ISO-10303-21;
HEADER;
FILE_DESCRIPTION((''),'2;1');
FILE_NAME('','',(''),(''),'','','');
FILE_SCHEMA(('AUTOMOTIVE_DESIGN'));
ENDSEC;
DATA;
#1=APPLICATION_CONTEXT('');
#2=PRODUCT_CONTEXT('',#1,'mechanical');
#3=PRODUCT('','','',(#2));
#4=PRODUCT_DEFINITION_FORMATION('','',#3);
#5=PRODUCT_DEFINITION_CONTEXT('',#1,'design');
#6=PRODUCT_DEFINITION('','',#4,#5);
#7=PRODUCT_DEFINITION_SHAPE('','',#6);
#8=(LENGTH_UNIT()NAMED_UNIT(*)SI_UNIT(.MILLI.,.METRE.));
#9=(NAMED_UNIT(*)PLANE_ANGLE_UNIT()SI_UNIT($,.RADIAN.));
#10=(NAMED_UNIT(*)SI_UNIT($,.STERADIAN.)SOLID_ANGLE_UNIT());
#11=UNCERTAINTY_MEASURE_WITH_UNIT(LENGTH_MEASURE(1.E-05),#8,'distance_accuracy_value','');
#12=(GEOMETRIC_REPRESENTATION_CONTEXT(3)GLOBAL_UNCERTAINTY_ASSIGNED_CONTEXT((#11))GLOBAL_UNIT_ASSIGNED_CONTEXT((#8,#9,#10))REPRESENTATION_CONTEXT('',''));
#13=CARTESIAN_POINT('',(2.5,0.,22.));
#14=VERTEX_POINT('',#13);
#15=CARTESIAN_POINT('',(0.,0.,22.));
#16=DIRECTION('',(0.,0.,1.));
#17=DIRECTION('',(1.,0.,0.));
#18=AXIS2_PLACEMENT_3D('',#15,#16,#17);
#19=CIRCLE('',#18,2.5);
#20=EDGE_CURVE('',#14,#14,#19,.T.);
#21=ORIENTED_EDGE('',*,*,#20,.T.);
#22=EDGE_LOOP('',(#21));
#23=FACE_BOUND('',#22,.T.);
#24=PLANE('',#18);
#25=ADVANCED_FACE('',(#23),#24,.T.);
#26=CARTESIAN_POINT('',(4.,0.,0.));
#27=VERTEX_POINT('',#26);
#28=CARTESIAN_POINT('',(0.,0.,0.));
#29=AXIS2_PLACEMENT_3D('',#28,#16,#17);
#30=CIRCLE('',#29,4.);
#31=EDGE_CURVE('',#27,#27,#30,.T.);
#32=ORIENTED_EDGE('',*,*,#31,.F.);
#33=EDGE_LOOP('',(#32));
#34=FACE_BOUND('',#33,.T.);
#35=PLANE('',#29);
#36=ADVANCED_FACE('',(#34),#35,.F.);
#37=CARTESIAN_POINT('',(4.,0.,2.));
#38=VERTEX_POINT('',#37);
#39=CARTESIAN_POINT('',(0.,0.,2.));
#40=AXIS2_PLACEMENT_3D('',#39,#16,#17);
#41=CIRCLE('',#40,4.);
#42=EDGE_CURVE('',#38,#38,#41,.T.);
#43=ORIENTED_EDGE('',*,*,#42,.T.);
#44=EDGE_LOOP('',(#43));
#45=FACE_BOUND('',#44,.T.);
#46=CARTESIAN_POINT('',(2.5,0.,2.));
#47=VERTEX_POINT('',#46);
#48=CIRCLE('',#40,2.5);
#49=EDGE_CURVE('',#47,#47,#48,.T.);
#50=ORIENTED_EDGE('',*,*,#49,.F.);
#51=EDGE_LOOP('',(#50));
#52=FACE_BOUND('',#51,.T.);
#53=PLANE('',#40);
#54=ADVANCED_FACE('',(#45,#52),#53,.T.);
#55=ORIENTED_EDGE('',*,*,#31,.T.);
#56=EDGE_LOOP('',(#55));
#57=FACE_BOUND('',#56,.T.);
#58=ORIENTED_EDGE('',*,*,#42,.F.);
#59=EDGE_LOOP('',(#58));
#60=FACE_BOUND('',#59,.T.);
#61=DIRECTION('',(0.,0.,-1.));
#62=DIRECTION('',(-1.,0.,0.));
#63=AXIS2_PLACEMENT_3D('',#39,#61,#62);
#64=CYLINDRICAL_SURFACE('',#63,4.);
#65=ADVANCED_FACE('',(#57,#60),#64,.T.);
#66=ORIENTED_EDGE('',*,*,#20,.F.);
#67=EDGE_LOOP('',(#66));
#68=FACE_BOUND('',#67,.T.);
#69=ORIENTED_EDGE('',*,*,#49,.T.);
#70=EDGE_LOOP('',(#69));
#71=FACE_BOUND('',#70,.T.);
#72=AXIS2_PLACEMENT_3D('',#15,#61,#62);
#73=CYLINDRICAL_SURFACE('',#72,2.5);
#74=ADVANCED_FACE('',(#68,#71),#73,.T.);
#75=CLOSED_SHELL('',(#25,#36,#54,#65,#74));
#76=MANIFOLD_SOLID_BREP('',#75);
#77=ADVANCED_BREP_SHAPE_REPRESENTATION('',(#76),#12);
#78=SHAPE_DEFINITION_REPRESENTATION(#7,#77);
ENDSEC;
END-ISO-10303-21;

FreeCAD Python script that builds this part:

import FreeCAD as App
import Part
import Sketcher

V = App.Vector

doc = App.newDocument("Part")
params = doc.addObject("Spreadsheet::Sheet", "Params")
for row, (alias, value) in enumerate([
    ("sketch1_diameter", "8 mm"),
    ("pad1_length", "2 mm"),
    ("sketch2_diameter", "5 mm"),
    ("pad2_length", "20 mm"),
], start=1):
    params.set(f"A{row}", alias)
    params.set(f"B{row}", "=" + value)
    params.setAlias(f"B{row}", alias)

body = doc.addObject("PartDesign::Body", "Body")

sketch1 = body.newObject("Sketcher::SketchObject", "Sketch")
sketch1.AttachmentSupport = (doc.getObject("XY_Plane"), [""])
sketch1.MapMode = "FlatFace"
sketch1.addGeometry(Part.Circle(V(0, 0, 0), V(0, 0, 1), 4), False)
sketch1.addConstraint(Sketcher.Constraint("Coincident", 0, 3, -1, 1))
sketch1.addConstraint(Sketcher.Constraint("Diameter", 0, 8.0))
sketch1.setExpression("Constraints[1]", "Params.sketch1_diameter")
pad1 = body.newObject("PartDesign::Pad", "Pad")
pad1.Profile = sketch1
pad1.setExpression("Length", "Params.pad1_length")

sketch2 = body.newObject("Sketcher::SketchObject", "Sketch001")
sketch2.AttachmentSupport = (doc.getObject("XY_Plane"), [""])
sketch2.MapMode = "FlatFace"
sketch2.AttachmentOffset = App.Placement(V(0, 0, 2), App.Rotation())
sketch2.addGeometry(Part.Circle(V(0, 0, 0), V(0, 0, 1), 2.5), False)
sketch2.addConstraint(Sketcher.Constraint("Coincident", 0, 3, -1, 1))
sketch2.addConstraint(Sketcher.Constraint("Diameter", 0, 5.0))
sketch2.setExpression("Constraints[1]", "Params.sketch2_diameter")
pad2 = body.newObject("PartDesign::Pad", "Pad001")
pad2.Profile = sketch2
pad2.setExpression("Length", "Params.pad2_length")

doc.recompute()
